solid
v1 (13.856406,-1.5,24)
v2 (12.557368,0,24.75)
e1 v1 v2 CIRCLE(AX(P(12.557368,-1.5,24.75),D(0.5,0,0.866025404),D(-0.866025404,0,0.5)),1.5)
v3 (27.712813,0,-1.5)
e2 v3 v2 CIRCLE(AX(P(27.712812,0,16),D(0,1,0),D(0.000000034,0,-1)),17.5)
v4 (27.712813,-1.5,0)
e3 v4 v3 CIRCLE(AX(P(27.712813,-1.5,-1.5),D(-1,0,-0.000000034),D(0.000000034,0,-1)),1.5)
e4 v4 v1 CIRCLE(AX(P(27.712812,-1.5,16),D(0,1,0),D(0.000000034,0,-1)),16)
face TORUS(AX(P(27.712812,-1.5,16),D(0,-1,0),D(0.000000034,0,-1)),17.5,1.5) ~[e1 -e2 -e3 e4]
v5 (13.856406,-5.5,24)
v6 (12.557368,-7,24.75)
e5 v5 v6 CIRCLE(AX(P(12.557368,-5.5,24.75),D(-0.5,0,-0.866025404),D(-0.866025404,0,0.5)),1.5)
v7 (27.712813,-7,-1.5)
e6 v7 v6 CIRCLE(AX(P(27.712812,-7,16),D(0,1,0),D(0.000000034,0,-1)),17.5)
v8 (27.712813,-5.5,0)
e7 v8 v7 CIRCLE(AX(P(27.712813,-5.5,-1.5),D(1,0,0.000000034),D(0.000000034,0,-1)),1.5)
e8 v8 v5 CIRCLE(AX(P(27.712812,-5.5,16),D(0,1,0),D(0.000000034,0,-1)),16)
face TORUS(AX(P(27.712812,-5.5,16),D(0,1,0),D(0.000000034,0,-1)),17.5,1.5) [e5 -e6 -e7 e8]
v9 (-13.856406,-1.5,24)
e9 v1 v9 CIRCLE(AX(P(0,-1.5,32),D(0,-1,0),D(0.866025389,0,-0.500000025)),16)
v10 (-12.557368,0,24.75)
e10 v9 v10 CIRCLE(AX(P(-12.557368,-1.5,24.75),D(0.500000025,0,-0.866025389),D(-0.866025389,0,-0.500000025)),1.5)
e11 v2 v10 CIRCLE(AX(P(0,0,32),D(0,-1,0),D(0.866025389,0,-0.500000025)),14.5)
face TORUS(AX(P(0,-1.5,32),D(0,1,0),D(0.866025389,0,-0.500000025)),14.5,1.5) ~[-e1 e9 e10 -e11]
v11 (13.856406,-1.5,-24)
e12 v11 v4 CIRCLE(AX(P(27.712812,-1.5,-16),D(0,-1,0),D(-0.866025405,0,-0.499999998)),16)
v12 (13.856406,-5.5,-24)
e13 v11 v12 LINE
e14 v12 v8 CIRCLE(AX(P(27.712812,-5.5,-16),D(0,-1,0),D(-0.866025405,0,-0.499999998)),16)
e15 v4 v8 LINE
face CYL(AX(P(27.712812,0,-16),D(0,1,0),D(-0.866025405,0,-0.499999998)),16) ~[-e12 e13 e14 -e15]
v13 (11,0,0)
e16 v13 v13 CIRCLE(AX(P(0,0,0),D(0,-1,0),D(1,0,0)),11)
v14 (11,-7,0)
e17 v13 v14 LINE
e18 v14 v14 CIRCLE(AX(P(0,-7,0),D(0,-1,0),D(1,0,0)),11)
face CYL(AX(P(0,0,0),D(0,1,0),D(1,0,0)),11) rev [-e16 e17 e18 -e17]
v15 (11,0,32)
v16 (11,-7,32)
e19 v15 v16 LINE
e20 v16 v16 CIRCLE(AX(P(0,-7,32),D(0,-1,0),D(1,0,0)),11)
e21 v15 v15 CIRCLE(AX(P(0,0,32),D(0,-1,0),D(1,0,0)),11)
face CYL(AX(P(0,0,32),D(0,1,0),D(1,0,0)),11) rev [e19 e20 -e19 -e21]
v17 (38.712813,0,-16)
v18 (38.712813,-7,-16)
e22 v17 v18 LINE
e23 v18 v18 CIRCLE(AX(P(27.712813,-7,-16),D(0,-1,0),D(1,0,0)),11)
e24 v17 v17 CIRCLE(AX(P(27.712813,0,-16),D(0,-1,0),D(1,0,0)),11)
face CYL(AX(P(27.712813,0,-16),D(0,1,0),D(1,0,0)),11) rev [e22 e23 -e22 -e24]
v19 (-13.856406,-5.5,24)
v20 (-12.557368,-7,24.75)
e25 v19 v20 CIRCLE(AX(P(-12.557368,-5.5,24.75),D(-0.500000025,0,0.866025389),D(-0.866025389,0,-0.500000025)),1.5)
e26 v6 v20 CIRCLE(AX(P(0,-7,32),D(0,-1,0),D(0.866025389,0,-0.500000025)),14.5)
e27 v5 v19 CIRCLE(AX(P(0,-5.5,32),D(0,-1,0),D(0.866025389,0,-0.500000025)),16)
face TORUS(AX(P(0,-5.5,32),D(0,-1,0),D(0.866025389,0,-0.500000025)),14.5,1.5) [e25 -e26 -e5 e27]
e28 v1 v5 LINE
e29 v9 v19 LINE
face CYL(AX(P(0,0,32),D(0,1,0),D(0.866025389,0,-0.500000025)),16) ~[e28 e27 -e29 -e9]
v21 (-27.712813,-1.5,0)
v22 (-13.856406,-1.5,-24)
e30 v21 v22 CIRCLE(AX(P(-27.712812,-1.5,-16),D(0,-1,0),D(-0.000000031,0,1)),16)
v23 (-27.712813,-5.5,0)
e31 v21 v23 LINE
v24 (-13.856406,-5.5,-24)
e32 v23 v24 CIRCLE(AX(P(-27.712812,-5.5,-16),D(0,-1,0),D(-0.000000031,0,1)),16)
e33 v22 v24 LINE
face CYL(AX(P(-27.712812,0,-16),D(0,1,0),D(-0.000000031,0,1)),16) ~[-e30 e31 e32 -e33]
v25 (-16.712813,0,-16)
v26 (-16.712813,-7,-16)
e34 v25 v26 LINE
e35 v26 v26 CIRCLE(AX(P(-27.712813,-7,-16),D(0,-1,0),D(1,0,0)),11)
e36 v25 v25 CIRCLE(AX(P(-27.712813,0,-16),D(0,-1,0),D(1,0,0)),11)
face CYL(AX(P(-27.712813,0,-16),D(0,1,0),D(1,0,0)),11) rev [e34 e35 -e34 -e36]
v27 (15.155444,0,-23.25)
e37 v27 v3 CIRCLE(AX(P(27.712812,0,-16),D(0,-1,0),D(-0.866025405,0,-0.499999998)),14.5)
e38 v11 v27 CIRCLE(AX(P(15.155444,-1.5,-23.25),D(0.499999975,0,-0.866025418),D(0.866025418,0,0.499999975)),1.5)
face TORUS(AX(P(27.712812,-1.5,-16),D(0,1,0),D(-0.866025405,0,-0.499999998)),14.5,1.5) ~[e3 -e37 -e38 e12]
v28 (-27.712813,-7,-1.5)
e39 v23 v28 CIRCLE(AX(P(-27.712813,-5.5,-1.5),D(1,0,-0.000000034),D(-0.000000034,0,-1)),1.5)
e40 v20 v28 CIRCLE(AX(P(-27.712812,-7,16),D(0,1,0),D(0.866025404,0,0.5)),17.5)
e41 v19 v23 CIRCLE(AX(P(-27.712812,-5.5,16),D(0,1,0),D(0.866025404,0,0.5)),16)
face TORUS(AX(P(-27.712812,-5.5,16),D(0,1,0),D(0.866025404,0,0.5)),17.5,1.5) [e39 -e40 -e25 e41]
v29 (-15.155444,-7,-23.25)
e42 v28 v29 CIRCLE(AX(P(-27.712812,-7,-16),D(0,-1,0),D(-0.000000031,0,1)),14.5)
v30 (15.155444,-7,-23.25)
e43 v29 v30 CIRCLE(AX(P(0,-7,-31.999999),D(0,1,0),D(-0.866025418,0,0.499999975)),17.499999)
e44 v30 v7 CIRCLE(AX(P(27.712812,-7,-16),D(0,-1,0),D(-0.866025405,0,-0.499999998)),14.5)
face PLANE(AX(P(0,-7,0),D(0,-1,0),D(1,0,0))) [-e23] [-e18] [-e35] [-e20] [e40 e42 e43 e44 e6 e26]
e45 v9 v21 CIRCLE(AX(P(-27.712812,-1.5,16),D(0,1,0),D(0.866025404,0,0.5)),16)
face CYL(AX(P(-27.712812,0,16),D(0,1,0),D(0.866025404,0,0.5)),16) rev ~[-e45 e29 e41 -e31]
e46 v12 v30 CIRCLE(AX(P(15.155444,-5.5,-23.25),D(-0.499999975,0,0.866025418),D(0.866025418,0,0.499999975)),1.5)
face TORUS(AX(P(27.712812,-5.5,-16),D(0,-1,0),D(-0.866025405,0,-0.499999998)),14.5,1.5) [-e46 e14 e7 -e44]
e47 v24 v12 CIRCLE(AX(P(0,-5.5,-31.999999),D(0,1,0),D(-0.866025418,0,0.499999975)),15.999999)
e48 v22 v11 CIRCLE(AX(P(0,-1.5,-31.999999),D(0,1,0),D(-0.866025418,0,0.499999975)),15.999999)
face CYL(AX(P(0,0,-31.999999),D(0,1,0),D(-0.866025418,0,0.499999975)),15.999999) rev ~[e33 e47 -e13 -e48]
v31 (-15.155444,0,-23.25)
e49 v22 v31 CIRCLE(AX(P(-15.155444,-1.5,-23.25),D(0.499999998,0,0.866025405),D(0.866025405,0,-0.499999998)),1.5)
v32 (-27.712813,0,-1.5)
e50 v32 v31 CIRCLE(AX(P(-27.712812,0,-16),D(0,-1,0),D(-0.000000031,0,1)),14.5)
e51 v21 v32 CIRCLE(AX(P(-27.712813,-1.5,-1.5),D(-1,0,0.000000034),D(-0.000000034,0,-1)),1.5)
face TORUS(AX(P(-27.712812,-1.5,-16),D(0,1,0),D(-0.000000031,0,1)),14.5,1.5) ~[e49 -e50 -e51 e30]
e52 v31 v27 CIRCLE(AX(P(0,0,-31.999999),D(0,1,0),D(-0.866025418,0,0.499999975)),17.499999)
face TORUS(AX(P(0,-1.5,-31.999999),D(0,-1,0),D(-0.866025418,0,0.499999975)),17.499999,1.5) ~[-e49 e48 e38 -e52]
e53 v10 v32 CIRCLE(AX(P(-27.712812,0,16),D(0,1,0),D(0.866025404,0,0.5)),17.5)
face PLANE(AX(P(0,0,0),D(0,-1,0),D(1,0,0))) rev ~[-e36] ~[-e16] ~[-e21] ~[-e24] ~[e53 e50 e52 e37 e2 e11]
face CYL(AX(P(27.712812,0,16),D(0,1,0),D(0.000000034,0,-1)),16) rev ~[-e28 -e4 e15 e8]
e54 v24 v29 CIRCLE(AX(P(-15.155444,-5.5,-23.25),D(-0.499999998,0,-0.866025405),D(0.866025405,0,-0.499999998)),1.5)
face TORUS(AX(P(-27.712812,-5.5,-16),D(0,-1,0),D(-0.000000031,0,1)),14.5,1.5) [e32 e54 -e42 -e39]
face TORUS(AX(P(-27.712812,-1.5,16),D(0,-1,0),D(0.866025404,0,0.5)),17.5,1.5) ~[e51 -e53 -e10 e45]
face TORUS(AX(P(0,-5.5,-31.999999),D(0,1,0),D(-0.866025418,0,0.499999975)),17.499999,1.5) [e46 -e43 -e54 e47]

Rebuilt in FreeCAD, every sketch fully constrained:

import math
import FreeCAD as App
import Part
import Sketcher
Q = App.Units.Quantity


def edges_at(feature, points):
    """Names of the edges that pass closest to the given points."""
    edges = feature.Shape.Edges
    near = lambda p: min(range(len(edges)), key=lambda i: edges[i].distToShape(Part.Vertex(*p))[0])
    return sorted({f"Edge{near(p) + 1}" for p in points})

doc = App.newDocument("Part")
body = doc.addObject("PartDesign::Body", "Body")

# Sketch on XZ plane
sketch1 = body.newObject("Sketcher::SketchObject", "Sketch")
sketch1.AttachmentSupport = (doc.getObject("XZ_Plane"), [""])
sketch1.MapMode = "FlatFace"
sketch1.addGeometry([
    Part.ArcOfCircle(Part.Circle(App.Vector(28, 16, 0), App.Vector(0, 0, 1), 16), math.radians(150), math.radians(270)),  # 0
    Part.ArcOfCircle(Part.Circle(App.Vector(0, 32, 0), App.Vector(0, 0, 1), 16), math.radians(-30), math.radians(210)),  # 1
    Part.ArcOfCircle(Part.Circle(App.Vector(-28, 16, 0), App.Vector(0, 0, 1), 16), math.radians(-90), math.radians(30)),  # 2
    Part.ArcOfCircle(Part.Circle(App.Vector(-28, -16, 0), App.Vector(0, 0, 1), 16), math.radians(90), math.radians(330)),  # 3
    Part.ArcOfCircle(Part.Circle(App.Vector(0, -32, 0), App.Vector(0, 0, 1), 16), math.radians(30), math.radians(150)),  # 4
    Part.ArcOfCircle(Part.Circle(App.Vector(28, -16, 0), App.Vector(0, 0, 1), 16), math.radians(-150), math.radians(90)),  # 5
    Part.Circle(App.Vector(-28, -16, 0), App.Vector(0, 0, 1), 11),  # 6
    Part.Circle(App.Vector(28, -16, 0), App.Vector(0, 0, 1), 11),  # 7
    Part.Circle(App.Vector(0, 0, 0), App.Vector(0, 0, 1), 11),  # 8
    Part.Circle(App.Vector(0, 32, 0), App.Vector(0, 0, 1), 11),  # 9
], False)
sketch1.addConstraint([
    Sketcher.Constraint("Tangent", 0, 1, 1, 1),
    Sketcher.Constraint("Tangent", 1, 2, 2, 2),
    Sketcher.Constraint("Tangent", 2, 1, 3, 1),
    Sketcher.Constraint("Tangent", 3, 2, 4, 2),
    Sketcher.Constraint("Tangent", 4, 1, 5, 1),
    Sketcher.Constraint("Tangent", 5, 2, 0, 2),
    Sketcher.Constraint("Coincident", 8, 3, -1, 1),
    Sketcher.Constraint("Coincident", 6, 3, 3, 3),
    Sketcher.Constraint("Coincident", 7, 3, 5, 3),
    Sketcher.Constraint("Coincident", 9, 3, 1, 3),
    Sketcher.Constraint("Equal", 0, 1),
    Sketcher.Constraint("Equal", 1, 2),
    Sketcher.Constraint("Equal", 2, 3),
    Sketcher.Constraint("Equal", 3, 4),
    Sketcher.Constraint("Equal", 4, 5),
    Sketcher.Constraint("Equal", 6, 7),
    Sketcher.Constraint("Equal", 7, 8),
    Sketcher.Constraint("Equal", 8, 9),
    Sketcher.Constraint("Symmetric", 0, 3, 3, 3, -1, 1),
    Sketcher.Constraint("Symmetric", 0, 3, 2, 3, -2),
    Sketcher.Constraint("PointOnObject", 4, 3, -2),
    Sketcher.Constraint("Diameter", 6, Q("22 mm")),
    Sketcher.Constraint("Radius", 0, Q("16 mm")),
    Sketcher.Constraint("DistanceY", -1, 1, 1, 3, Q("32 mm")),
])
pad1 = body.newObject("PartDesign::Pad", "Pad")
pad1.Profile = sketch1
pad1.Length = 7
doc.recompute()

fillet = body.newObject("PartDesign::Fillet", "Fillet")
fillet.Base = (pad1, edges_at(pad1, [
    (27.713, -3.5, 0),
    (13.856, -3.5, 24),
    (13.856, 0, 8),
    (13.856, -7, 8),
    (13.856, -3.5, -24),
    (41.569, 0, -24),
    (41.569, -7, -24),
    (-13.856, -3.5, 24),
    (0, 0, 48),
    (0, -7, 48),
    (-13.856, -7, 8),
    (-27.713, -3.5, 0),
    (-13.856, 0, 8),
    (-13.856, -3.5, -24),
    (-41.569, 0, -24),
    (-41.569, -7, -24),
    (0, 0, -16),
    (0, -7, -16),
]))
fillet.Radius = 1.5

doc.recompute()
